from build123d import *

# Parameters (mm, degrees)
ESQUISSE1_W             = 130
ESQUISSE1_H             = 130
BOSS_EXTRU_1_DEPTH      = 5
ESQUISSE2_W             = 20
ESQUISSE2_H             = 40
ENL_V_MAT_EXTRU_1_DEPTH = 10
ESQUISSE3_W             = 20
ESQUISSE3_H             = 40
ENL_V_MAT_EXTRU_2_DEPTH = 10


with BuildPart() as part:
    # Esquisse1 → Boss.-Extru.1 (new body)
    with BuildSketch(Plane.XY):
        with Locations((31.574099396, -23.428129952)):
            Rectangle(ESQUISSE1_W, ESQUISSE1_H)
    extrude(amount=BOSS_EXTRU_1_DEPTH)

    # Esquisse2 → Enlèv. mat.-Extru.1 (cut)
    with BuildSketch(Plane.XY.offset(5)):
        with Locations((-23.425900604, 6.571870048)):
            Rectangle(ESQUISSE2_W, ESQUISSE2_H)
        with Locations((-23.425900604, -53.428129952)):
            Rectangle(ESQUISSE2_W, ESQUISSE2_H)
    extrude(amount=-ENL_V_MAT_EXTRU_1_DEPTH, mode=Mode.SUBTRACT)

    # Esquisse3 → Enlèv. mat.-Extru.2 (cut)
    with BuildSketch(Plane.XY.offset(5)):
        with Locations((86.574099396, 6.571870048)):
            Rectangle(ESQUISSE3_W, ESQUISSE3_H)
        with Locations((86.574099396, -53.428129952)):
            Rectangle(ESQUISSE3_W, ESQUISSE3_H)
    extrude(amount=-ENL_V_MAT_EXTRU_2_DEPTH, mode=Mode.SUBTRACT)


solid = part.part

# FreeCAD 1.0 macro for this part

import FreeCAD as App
import Part
import Sketcher

V = App.Vector
Q = App.Units.Quantity

doc = App.newDocument("Part")
body = doc.addObject("PartDesign::Body", "Body")

# Sketch on XY plane
sketch1 = body.newObject("Sketcher::SketchObject", "Sketch")
sketch1.AttachmentSupport = (doc.getObject("XY_Plane"), [""])
sketch1.MapMode = "FlatFace"
sketch1.addGeometry([
    Part.LineSegment(V(-33, 42, 0), V(-33, -88, 0)),
    Part.LineSegment(V(-33, -88, 0), V(97, -88, 0)),
    Part.LineSegment(V(97, -88, 0), V(97, 42, 0)),
    Part.LineSegment(V(97, 42, 0), V(-33, 42, 0)),
], False)
sketch1.addConstraint([
    Sketcher.Constraint("Coincident", 0, 2, 1, 1),
    Sketcher.Constraint("Coincident", 1, 2, 2, 1),
    Sketcher.Constraint("Coincident", 2, 2, 3, 1),
    Sketcher.Constraint("Coincident", 3, 2, 0, 1),
    Sketcher.Constraint("Vertical", 0),
    Sketcher.Constraint("Horizontal", 1),
    Sketcher.Constraint("Vertical", 2),
    Sketcher.Constraint("Horizontal", 3),
    Sketcher.Constraint("Equal", 3, 0),
    Sketcher.Constraint("DistanceX", 1, 1, 1, 2, Q("130 mm")),
    Sketcher.Constraint("DistanceX", 0, 2, -1, 1, Q("33.425901 mm")),
    Sketcher.Constraint("DistanceY", 0, 2, -1, 1, Q("88.42813 mm")),
])
pad1 = body.newObject("PartDesign::Pad", "Pad")
pad1.Profile = sketch1
pad1.Length = 5

# Sketch on XY plane
sketch2 = body.newObject("Sketcher::SketchObject", "Sketch001")
sketch2.AttachmentSupport = (doc.getObject("XY_Plane"), [""])
sketch2.MapMode = "FlatFace"
sketch2.AttachmentOffset = App.Placement(V(0, 0, 5), App.Rotation())
sketch2.addGeometry([
    Part.LineSegment(V(-33, 27, 0), V(-33, -13, 0)),  # 0
    Part.LineSegment(V(-33, -13, 0), V(-13, -13, 0)),  # 1
    Part.LineSegment(V(-13, -13, 0), V(-13, 27, 0)),  # 2
    Part.LineSegment(V(-13, 27, 0), V(-33, 27, 0)),  # 3
    Part.LineSegment(V(-33, -33, 0), V(-33, -73, 0)),  # 4
    Part.LineSegment(V(-33, -73, 0), V(-13, -73, 0)),  # 5
    Part.LineSegment(V(-13, -73, 0), V(-13, -33, 0)),  # 6
    Part.LineSegment(V(-13, -33, 0), V(-33, -33, 0)),  # 7
], False)
sketch2.addConstraint([
    Sketcher.Constraint("Coincident", 0, 2, 1, 1),
    Sketcher.Constraint("Coincident", 1, 2, 2, 1),
    Sketcher.Constraint("Coincident", 2, 2, 3, 1),
    Sketcher.Constraint("Coincident", 3, 2, 0, 1),
    Sketcher.Constraint("Coincident", 4, 2, 5, 1),
    Sketcher.Constraint("Coincident", 5, 2, 6, 1),
    Sketcher.Constraint("Coincident", 6, 2, 7, 1),
    Sketcher.Constraint("Coincident", 7, 2, 4, 1),
    Sketcher.Constraint("Vertical", 0),
    Sketcher.Constraint("Horizontal", 1),
    Sketcher.Constraint("Vertical", 2),
    Sketcher.Constraint("Horizontal", 3),
    Sketcher.Constraint("Vertical", 4),
    Sketcher.Constraint("Horizontal", 5),
    Sketcher.Constraint("Vertical", 6),
    Sketcher.Constraint("Horizontal", 7),
    Sketcher.Constraint("Vertical", 3, 2, 4, 2),
    Sketcher.Constraint("Vertical", 2, 2, 5, 2),
    Sketcher.Constraint("Equal", 2, 4),
    Sketcher.Constraint("DistanceX", 1, 1, 1, 2, Q("20 mm")),
    Sketcher.Constraint("DistanceY", 0, 2, 0, 1, Q("40 mm")),
    Sketcher.Constraint("DistanceY", 4, 2, 0, 2, Q("60 mm")),
    Sketcher.Constraint("DistanceX", 0, 2, -1, 1, Q("33.425901 mm")),
    Sketcher.Constraint("DistanceY", 0, 2, -1, 1, Q("13.42813 mm")),
])
pocket1 = body.newObject("PartDesign::Pocket", "Pocket")
pocket1.Profile = sketch2
pocket1.Length = 10

# Sketch on XY plane
sketch3 = body.newObject("Sketcher::SketchObject", "Sketch002")
sketch3.AttachmentSupport = (doc.getObject("XY_Plane"), [""])
sketch3.MapMode = "FlatFace"
sketch3.AttachmentOffset = App.Placement(V(0, 0, 5), App.Rotation())
sketch3.addGeometry([
    Part.LineSegment(V(77, 27, 0), V(77, -13, 0)),  # 0
    Part.LineSegment(V(77, -13, 0), V(97, -13, 0)),  # 1
    Part.LineSegment(V(97, -13, 0), V(97, 27, 0)),  # 2
    Part.LineSegment(V(97, 27, 0), V(77, 27, 0)),  # 3
    Part.LineSegment(V(77, -33, 0), V(77, -73, 0)),  # 4
    Part.LineSegment(V(77, -73, 0), V(97, -73, 0)),  # 5
    Part.LineSegment(V(97, -73, 0), V(97, -33, 0)),  # 6
    Part.LineSegment(V(97, -33, 0), V(77, -33, 0)),  # 7
], False)
sketch3.addConstraint([
    Sketcher.Constraint("Coincident", 0, 2, 1, 1),
    Sketcher.Constraint("Coincident", 1, 2, 2, 1),
    Sketcher.Constraint("Coincident", 2, 2, 3, 1),
    Sketcher.Constraint("Coincident", 3, 2, 0, 1),
    Sketcher.Constraint("Coincident", 4, 2, 5, 1),
    Sketcher.Constraint("Coincident", 5, 2, 6, 1),
    Sketcher.Constraint("Coincident", 6, 2, 7, 1),
    Sketcher.Constraint("Coincident", 7, 2, 4, 1),
    Sketcher.Constraint("Vertical", 0),
    Sketcher.Constraint("Horizontal", 1),
    Sketcher.Constraint("Vertical", 2),
    Sketcher.Constraint("Horizontal", 3),
    Sketcher.Constraint("Vertical", 4),
    Sketcher.Constraint("Horizontal", 5),
    Sketcher.Constraint("Vertical", 6),
    Sketcher.Constraint("Horizontal", 7),
    Sketcher.Constraint("Vertical", 3, 2, 4, 2),
    Sketcher.Constraint("Vertical", 2, 2, 5, 2),
    Sketcher.Constraint("Equal", 2, 4),
    Sketcher.Constraint("DistanceX", 1, 1, 1, 2, Q("20 mm")),
    Sketcher.Constraint("DistanceY", 0, 2, 0, 1, Q("40 mm")),
    Sketcher.Constraint("DistanceY", 4, 2, 0, 2, Q("60 mm")),
    Sketcher.Constraint("DistanceX", -1, 1, 0, 2, Q("76.574099 mm")),
    Sketcher.Constraint("DistanceY", 0, 2, -1, 1, Q("13.42813 mm")),
])
pocket2 = body.newObject("PartDesign::Pocket", "Pocket001")
pocket2.Profile = sketch3
pocket2.Length = 10

doc.recompute()
